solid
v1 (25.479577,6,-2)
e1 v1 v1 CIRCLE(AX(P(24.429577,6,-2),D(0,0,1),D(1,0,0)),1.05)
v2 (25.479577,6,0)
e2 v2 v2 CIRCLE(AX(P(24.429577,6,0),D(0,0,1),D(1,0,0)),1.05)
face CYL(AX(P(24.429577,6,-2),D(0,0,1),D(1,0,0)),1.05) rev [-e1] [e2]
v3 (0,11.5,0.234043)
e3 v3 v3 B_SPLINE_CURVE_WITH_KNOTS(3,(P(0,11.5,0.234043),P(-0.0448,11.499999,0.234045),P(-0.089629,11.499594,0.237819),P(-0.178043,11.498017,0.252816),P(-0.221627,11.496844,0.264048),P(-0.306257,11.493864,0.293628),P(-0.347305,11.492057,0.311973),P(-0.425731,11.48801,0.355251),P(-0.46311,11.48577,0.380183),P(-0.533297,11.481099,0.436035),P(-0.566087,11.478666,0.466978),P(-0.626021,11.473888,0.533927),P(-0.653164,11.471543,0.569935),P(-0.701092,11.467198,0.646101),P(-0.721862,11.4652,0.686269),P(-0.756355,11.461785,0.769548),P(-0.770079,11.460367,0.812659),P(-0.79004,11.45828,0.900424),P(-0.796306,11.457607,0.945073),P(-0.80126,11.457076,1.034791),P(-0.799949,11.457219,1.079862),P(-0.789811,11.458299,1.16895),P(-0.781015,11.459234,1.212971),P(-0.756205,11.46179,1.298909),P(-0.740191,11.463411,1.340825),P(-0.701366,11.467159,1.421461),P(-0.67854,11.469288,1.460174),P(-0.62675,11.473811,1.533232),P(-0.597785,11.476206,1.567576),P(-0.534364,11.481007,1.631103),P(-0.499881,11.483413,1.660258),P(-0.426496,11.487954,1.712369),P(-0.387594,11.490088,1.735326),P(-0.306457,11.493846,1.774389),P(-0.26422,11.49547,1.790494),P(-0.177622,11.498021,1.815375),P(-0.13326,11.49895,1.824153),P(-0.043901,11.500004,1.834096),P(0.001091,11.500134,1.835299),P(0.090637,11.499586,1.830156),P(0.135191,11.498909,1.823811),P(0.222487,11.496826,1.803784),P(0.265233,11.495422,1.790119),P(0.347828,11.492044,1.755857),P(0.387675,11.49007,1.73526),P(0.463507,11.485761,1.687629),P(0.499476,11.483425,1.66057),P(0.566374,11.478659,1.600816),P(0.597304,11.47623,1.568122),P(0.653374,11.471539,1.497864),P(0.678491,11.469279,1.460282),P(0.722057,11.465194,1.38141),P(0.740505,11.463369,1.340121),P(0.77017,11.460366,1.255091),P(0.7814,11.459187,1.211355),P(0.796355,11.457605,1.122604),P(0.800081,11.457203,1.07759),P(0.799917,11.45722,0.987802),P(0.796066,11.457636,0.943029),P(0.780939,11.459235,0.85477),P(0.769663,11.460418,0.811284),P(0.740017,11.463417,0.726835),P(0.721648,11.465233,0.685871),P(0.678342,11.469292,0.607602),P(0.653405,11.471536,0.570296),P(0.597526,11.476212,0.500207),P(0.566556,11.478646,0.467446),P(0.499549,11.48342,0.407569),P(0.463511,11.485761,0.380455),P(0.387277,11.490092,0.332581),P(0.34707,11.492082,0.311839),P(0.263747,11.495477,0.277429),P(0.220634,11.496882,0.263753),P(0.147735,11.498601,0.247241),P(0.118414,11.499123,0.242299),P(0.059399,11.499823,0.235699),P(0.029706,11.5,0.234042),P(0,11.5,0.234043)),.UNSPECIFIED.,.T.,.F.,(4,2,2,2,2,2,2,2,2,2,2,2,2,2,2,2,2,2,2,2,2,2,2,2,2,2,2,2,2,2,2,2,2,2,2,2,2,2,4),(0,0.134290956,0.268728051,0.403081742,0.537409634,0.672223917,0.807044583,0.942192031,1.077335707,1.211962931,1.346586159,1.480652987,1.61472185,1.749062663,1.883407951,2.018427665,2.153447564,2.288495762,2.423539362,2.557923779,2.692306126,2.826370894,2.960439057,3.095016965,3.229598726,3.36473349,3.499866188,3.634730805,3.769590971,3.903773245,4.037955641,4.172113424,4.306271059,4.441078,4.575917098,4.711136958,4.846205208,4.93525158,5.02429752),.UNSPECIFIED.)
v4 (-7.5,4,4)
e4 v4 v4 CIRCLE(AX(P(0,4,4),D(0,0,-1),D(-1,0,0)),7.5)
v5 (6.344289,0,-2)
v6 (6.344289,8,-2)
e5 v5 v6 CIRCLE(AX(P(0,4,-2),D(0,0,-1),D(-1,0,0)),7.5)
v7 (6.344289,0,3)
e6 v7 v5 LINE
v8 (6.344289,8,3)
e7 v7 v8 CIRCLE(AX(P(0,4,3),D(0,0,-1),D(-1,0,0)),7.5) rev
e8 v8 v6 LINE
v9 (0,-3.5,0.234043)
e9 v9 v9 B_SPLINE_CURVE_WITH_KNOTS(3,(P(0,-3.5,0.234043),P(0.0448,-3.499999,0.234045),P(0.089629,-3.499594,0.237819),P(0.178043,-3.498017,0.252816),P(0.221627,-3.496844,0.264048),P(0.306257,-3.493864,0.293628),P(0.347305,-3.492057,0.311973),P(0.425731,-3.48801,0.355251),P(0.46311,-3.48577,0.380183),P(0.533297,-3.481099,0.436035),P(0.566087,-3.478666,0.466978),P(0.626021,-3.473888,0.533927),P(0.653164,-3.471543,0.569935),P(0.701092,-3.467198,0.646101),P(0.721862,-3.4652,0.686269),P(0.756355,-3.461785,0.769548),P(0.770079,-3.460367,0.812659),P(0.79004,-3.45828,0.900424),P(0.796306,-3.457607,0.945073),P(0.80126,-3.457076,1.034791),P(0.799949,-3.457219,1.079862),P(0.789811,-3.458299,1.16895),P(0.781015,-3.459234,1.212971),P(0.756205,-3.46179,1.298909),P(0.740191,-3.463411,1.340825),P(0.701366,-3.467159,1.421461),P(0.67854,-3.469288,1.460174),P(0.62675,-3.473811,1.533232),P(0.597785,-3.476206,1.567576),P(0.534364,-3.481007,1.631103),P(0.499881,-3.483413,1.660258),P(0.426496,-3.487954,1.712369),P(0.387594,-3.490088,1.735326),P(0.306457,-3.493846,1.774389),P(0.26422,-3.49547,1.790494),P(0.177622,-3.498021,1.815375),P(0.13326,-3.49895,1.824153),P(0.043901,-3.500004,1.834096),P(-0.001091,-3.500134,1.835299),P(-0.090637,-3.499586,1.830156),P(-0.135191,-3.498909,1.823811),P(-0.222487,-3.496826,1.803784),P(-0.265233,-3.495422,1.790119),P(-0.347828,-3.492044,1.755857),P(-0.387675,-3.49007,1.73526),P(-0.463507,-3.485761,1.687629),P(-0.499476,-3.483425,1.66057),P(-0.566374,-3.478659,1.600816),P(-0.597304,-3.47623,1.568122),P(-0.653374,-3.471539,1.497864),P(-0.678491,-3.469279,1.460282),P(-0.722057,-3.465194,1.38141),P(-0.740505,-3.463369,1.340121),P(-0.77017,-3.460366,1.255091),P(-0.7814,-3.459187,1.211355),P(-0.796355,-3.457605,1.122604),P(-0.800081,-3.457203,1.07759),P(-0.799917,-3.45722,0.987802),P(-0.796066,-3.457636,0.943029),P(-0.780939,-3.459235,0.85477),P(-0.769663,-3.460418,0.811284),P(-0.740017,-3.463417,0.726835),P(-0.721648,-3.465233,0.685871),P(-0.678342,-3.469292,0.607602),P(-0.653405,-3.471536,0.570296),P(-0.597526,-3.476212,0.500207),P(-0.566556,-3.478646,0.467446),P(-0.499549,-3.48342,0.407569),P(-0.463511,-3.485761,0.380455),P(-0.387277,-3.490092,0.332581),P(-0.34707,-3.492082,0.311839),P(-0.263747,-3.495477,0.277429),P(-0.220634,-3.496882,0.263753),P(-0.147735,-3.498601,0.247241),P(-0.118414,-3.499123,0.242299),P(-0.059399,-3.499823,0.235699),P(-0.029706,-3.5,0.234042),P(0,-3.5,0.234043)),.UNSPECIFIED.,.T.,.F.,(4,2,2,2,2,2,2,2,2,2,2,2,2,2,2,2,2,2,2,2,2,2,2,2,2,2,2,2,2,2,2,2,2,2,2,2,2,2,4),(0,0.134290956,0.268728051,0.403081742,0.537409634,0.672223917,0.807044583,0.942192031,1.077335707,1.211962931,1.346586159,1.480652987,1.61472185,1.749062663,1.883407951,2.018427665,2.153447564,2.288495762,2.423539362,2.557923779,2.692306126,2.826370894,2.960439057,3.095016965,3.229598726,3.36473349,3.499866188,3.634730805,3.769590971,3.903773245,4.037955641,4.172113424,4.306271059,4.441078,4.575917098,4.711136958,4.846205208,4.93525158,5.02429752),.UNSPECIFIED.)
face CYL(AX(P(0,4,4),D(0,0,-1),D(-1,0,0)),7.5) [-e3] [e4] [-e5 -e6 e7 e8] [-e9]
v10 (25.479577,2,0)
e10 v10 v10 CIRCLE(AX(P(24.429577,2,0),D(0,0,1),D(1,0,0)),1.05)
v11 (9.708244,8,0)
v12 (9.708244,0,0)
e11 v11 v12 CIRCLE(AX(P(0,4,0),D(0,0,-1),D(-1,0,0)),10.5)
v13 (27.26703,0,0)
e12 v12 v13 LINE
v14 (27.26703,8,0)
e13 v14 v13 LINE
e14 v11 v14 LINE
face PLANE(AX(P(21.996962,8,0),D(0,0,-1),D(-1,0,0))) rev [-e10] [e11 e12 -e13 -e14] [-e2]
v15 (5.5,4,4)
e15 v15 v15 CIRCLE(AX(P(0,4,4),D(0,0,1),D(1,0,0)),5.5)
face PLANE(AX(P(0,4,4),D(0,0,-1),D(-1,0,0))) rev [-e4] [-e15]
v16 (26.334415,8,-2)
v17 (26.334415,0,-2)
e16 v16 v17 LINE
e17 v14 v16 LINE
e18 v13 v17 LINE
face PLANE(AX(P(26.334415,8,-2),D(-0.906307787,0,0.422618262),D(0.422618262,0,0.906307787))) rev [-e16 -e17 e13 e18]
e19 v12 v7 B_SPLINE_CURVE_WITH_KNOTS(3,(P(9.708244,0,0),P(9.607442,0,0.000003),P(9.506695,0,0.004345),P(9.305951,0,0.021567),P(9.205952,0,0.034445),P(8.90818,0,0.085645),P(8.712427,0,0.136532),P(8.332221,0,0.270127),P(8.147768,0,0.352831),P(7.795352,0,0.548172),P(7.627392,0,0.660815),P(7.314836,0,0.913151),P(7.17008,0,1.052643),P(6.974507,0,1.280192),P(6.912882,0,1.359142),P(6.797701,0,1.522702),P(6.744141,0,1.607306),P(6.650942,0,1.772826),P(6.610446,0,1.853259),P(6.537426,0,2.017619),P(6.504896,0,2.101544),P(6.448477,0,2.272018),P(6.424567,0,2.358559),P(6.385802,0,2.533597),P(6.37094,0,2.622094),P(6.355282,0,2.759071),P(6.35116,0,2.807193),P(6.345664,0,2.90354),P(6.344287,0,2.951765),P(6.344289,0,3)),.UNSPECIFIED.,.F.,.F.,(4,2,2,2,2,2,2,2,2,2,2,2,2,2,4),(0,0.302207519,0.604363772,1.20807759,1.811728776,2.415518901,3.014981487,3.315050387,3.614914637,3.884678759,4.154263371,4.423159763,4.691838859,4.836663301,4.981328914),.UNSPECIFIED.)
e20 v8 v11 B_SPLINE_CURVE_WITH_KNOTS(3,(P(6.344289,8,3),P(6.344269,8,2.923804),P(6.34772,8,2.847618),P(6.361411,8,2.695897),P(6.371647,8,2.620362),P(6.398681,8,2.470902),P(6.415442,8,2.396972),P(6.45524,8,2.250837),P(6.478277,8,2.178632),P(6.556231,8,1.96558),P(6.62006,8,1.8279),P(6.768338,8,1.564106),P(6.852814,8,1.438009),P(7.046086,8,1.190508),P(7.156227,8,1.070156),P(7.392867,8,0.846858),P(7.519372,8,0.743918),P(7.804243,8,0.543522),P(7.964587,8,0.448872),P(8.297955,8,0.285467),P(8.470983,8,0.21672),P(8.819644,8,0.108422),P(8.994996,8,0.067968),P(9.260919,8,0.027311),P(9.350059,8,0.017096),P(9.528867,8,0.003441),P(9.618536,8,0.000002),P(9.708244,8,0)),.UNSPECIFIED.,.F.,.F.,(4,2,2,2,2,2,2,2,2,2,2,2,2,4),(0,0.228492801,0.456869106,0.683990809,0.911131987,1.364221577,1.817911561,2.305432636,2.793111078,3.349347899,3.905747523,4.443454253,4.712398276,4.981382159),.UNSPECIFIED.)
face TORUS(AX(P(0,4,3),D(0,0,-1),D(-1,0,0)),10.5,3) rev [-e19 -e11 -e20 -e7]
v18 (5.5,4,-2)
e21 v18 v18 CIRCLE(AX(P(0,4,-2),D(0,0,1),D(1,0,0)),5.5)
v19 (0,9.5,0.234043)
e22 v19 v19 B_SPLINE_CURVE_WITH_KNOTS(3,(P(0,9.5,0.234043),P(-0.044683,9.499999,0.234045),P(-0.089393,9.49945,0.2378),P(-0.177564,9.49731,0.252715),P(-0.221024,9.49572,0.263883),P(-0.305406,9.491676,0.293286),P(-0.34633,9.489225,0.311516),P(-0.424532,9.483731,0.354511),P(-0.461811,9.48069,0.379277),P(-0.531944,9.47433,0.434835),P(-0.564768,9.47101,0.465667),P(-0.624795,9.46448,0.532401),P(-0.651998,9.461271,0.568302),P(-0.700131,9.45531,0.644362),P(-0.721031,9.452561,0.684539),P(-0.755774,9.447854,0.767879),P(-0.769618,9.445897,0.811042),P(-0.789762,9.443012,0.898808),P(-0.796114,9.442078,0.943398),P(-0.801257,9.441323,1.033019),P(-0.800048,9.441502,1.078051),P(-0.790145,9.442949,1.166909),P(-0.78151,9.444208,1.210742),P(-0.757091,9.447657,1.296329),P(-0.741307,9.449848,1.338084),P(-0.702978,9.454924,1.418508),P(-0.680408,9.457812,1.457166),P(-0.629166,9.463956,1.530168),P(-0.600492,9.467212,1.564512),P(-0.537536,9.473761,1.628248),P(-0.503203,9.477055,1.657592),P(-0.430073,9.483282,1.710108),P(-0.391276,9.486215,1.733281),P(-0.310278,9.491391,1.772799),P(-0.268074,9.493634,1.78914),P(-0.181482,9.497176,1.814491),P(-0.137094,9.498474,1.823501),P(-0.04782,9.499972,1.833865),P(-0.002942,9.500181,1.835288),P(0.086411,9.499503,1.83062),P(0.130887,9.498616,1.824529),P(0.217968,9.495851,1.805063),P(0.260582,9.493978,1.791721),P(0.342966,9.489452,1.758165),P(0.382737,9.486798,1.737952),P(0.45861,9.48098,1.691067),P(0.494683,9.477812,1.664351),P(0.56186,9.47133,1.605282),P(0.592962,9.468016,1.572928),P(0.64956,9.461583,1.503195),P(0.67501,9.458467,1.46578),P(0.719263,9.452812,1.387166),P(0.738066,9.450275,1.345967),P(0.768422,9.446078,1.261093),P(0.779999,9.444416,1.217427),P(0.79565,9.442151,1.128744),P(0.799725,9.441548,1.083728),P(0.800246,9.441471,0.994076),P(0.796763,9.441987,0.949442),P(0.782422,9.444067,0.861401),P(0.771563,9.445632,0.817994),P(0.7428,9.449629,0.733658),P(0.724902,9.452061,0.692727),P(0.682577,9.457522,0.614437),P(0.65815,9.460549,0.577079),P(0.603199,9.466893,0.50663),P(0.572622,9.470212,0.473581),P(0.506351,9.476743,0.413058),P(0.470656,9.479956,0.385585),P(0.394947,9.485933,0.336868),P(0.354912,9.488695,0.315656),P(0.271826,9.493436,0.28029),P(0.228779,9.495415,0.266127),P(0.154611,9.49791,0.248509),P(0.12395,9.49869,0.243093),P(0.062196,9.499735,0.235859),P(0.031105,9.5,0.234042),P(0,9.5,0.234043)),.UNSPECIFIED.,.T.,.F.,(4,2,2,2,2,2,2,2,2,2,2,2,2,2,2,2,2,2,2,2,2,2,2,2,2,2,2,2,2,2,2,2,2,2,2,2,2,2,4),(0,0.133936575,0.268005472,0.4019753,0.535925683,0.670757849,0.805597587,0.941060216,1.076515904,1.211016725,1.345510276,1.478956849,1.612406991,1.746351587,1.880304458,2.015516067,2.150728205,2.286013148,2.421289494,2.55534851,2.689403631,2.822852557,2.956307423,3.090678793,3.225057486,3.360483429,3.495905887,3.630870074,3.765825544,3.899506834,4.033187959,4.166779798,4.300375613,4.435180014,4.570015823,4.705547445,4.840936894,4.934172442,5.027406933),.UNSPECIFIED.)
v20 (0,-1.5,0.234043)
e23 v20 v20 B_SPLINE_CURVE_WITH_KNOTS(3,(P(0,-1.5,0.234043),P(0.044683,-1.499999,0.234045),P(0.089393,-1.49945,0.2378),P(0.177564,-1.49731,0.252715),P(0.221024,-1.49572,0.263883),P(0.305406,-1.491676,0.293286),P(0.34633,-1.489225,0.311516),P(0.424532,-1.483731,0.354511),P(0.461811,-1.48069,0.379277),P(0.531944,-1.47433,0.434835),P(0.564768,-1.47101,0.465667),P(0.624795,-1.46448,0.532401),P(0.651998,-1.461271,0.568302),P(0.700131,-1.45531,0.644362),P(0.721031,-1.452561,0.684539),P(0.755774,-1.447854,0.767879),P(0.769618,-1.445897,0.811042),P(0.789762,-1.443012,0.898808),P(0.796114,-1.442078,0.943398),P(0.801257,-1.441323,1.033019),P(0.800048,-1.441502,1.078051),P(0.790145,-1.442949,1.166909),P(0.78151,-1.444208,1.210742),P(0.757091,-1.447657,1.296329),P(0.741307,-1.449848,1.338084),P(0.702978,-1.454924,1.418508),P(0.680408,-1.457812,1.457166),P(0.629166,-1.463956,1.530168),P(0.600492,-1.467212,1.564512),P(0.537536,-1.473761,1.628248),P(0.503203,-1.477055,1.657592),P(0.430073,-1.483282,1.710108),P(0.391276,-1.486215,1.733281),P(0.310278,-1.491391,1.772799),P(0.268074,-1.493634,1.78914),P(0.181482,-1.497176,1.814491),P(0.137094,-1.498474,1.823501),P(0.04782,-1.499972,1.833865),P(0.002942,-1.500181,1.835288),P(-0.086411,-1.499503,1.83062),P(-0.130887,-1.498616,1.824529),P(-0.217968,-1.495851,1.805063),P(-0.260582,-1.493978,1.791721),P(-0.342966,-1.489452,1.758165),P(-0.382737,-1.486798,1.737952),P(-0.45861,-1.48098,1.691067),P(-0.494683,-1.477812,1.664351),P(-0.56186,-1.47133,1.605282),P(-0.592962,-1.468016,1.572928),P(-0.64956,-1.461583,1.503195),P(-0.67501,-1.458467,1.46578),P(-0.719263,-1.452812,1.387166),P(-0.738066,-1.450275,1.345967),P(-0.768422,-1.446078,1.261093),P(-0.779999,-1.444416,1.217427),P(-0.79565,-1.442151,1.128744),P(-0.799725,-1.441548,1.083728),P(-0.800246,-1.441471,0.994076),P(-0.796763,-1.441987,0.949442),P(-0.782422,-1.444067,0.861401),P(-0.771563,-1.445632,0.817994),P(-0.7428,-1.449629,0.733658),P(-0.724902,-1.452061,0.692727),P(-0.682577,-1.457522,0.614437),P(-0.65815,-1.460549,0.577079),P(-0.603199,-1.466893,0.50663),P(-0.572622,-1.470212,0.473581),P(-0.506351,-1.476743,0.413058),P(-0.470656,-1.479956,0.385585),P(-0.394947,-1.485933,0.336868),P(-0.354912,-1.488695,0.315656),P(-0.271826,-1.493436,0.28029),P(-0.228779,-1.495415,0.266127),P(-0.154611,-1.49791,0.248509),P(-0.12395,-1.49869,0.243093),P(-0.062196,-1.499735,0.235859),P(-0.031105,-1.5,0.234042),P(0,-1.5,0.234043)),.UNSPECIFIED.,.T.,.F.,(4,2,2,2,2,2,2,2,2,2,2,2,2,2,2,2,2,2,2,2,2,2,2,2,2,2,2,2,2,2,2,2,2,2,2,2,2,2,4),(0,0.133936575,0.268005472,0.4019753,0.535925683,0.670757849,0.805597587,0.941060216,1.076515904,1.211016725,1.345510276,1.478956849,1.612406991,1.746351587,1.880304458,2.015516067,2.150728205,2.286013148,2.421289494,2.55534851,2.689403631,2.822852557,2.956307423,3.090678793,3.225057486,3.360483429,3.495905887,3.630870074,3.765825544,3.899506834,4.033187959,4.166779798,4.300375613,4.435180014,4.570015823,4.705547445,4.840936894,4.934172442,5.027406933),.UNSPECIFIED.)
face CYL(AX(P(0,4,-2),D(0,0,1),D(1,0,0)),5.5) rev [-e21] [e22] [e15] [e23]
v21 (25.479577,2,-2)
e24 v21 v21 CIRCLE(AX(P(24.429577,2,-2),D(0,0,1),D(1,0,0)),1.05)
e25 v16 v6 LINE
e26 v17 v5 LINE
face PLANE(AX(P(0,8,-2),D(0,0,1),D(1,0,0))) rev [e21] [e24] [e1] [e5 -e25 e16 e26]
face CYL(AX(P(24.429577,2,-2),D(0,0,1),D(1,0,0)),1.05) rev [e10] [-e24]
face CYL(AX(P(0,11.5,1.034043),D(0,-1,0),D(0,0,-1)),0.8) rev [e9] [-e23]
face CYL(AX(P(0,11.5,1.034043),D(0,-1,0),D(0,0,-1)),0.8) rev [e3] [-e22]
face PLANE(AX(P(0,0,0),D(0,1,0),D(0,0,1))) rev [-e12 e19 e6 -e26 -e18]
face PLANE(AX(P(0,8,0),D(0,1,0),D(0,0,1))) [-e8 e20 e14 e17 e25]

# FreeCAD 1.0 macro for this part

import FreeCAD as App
import Part
import Sketcher
from FreeCAD import Vector
Q = App.Units.Quantity


def edges_at(feature, points):
    """Names of the edges that pass closest to the given points."""
    edges = feature.Shape.Edges
    near = lambda p: min(range(len(edges)), key=lambda i: edges[i].distToShape(Part.Vertex(*p))[0])
    return sorted({f"Edge{near(p) + 1}" for p in points})

doc = App.newDocument("Part")
params = doc.addObject("Spreadsheet::Sheet", "Params")
for row, (alias, value) in enumerate([
    ("sketch1_height", "2 mm"),
    ("pad1_length", "8 mm"),
    ("sketch2_diameter", "15 mm"),
    ("pad2_length", "6 mm"),
    ("sketch3_diameter", "11 mm"),
    ("sketch4_diameter", "1.6 mm"),
    ("fillet_radius", "3 mm"),
    ("sketch5_diameter", "2.1 mm"),
], start=1):
    params.set(f"A{row}", alias)
    params.set(f"B{row}", "=" + value)
    params.setAlias(f"B{row}", alias)

body = doc.addObject("PartDesign::Body", "Body")

sketch1 = doc.addObject("Sketcher::SketchObject", "Sketch")
body.addObject(sketch1)
sketch1.AttachmentSupport = (doc.XZ_Plane, [""])
sketch1.MapMode = "FlatFace"
sketch1.addGeometry([
    Part.LineSegment(Vector(0, -2, 0), Vector(0, 0, 0)),
    Part.LineSegment(Vector(0, 0, 0), Vector(27.3, 0, 0)),
    Part.LineSegment(Vector(27.3, 0, 0), Vector(26.3, -2, 0)),
    Part.LineSegment(Vector(26.3, -2, 0), Vector(0, -2, 0)),
], False)
sketch1.addConstraint([
    Sketcher.Constraint("Coincident", 0, 2, 1, 1),
    Sketcher.Constraint("Coincident", 1, 2, 2, 1),
    Sketcher.Constraint("Coincident", 2, 2, 3, 1),
    Sketcher.Constraint("Coincident", 3, 2, 0, 1),
    Sketcher.Constraint("Vertical", 0),
    Sketcher.Constraint("Horizontal", 1),
    Sketcher.Constraint("Horizontal", 3),
    Sketcher.Constraint("Coincident", 0, 2, -1, 1),
    Sketcher.Constraint("DistanceY", 0, 1, 0, 2, 2.0),
    Sketcher.Constraint("Angle", 2, Q("-115 deg")),
    Sketcher.Constraint("DistanceX", 1, 1, 1, 2, 27.26703),
])
sketch1.setExpression("Constraints[8]", "Params.sketch1_height")
pad1 = doc.addObject("PartDesign::Pad", "Pad")
body.addObject(pad1)
pad1.Profile = sketch1
pad1.setExpression("Length", "Params.pad1_length")
pad1.Reversed = True

sketch2 = doc.addObject("Sketcher::SketchObject", "Sketch001")
body.addObject(sketch2)
sketch2.AttachmentSupport = (doc.XY_Plane, [""])
sketch2.MapMode = "FlatFace"
sketch2.AttachmentOffset = App.Placement(Vector(0, 0, -2), App.Rotation())
sketch2.addGeometry(Part.Circle(Vector(0, 4, 0), Vector(0, 0, 1), 8), False)
sketch2.addConstraint([
    Sketcher.Constraint("PointOnObject", 0, 3, -2),
    Sketcher.Constraint("Diameter", 0, 15.0),
    Sketcher.Constraint("DistanceY", -1, 1, 0, 3, 4.0),
])
sketch2.setExpression("Constraints[1]", "Params.sketch2_diameter")
pad2 = doc.addObject("PartDesign::Pad", "Pad001")
body.addObject(pad2)
pad2.Profile = sketch2
pad2.setExpression("Length", "Params.pad2_length")

sketch3 = doc.addObject("Sketcher::SketchObject", "Sketch002")
body.addObject(sketch3)
sketch3.AttachmentSupport = (doc.XY_Plane, [""])
sketch3.MapMode = "FlatFace"
sketch3.addGeometry(Part.Circle(Vector(0, 4, 0), Vector(0, 0, 1), 6), False)
sketch3.addConstraint([
    Sketcher.Constraint("PointOnObject", 0, 3, -2),
    Sketcher.Constraint("Diameter", 0, 11.0),
    Sketcher.Constraint("DistanceY", -1, 1, 0, 3, 4.0),
])
sketch3.setExpression("Constraints[1]", "Params.sketch3_diameter")
pocket1 = doc.addObject("PartDesign::Pocket", "Pocket")
body.addObject(pocket1)
pocket1.Profile = sketch3
pocket1.Type = "ThroughAll"
pocket1.Midplane = True

sketch4 = doc.addObject("Sketcher::SketchObject", "Sketch003")
body.addObject(sketch4)
sketch4.AttachmentSupport = (doc.XZ_Plane, [""])
sketch4.MapMode = "FlatFace"
sketch4.AttachmentOffset = App.Placement(Vector(0, 0, 3.5), App.Rotation())
sketch4.addGeometry(Part.Circle(Vector(0, 1, 0), Vector(0, 0, 1), 0.8), False)
sketch4.addConstraint([
    Sketcher.Constraint("PointOnObject", 0, 3, -2),
    Sketcher.Constraint("Diameter", 0, 1.6),
    Sketcher.Constraint("DistanceY", -1, 1, 0, 3, 1.034043),
])
sketch4.setExpression("Constraints[1]", "Params.sketch4_diameter")
pocket2 = doc.addObject("PartDesign::Pocket", "Pocket001")
body.addObject(pocket2)
pocket2.Profile = sketch4
pocket2.Type = "ThroughAll"
doc.recompute()

fillet = doc.addObject("PartDesign::Fillet", "Fillet")
body.addObject(fillet)
fillet.Base = (pocket2, edges_at(pocket2, [(7.5, 4, 0)]))
fillet.setExpression("Radius", "Params.fillet_radius")

sketch5 = doc.addObject("Sketcher::SketchObject", "Sketch004")
body.addObject(sketch5)
sketch5.AttachmentSupport = (doc.XY_Plane, [""])
sketch5.MapMode = "FlatFace"
sketch5.addGeometry([
    Part.Circle(Vector(24.4, 2, 0), Vector(0, 0, 1), 1.1),
    Part.Circle(Vector(24.4, 6, 0), Vector(0, 0, 1), 1.1),
], False)
sketch5.addConstraint([
    Sketcher.Constraint("Equal", 0, 1),
    Sketcher.Constraint("Vertical", 0, 3, 1, 3),
    Sketcher.Constraint("Diameter", 0, 2.1),
    Sketcher.Constraint("DistanceY", -1, 1, 0, 3, 2.0),
    Sketcher.Constraint("DistanceY", -1, 1, 1, 3, 6.0),
    Sketcher.Constraint("DistanceX", -1, 1, 0, 3, 24.429577),
])
sketch5.setExpression("Constraints[2]", "Params.sketch5_diameter")
pocket3 = doc.addObject("PartDesign::Pocket", "Pocket002")
body.addObject(pocket3)
pocket3.Profile = sketch5
pocket3.Type = "ThroughAll"

doc.recompute()
